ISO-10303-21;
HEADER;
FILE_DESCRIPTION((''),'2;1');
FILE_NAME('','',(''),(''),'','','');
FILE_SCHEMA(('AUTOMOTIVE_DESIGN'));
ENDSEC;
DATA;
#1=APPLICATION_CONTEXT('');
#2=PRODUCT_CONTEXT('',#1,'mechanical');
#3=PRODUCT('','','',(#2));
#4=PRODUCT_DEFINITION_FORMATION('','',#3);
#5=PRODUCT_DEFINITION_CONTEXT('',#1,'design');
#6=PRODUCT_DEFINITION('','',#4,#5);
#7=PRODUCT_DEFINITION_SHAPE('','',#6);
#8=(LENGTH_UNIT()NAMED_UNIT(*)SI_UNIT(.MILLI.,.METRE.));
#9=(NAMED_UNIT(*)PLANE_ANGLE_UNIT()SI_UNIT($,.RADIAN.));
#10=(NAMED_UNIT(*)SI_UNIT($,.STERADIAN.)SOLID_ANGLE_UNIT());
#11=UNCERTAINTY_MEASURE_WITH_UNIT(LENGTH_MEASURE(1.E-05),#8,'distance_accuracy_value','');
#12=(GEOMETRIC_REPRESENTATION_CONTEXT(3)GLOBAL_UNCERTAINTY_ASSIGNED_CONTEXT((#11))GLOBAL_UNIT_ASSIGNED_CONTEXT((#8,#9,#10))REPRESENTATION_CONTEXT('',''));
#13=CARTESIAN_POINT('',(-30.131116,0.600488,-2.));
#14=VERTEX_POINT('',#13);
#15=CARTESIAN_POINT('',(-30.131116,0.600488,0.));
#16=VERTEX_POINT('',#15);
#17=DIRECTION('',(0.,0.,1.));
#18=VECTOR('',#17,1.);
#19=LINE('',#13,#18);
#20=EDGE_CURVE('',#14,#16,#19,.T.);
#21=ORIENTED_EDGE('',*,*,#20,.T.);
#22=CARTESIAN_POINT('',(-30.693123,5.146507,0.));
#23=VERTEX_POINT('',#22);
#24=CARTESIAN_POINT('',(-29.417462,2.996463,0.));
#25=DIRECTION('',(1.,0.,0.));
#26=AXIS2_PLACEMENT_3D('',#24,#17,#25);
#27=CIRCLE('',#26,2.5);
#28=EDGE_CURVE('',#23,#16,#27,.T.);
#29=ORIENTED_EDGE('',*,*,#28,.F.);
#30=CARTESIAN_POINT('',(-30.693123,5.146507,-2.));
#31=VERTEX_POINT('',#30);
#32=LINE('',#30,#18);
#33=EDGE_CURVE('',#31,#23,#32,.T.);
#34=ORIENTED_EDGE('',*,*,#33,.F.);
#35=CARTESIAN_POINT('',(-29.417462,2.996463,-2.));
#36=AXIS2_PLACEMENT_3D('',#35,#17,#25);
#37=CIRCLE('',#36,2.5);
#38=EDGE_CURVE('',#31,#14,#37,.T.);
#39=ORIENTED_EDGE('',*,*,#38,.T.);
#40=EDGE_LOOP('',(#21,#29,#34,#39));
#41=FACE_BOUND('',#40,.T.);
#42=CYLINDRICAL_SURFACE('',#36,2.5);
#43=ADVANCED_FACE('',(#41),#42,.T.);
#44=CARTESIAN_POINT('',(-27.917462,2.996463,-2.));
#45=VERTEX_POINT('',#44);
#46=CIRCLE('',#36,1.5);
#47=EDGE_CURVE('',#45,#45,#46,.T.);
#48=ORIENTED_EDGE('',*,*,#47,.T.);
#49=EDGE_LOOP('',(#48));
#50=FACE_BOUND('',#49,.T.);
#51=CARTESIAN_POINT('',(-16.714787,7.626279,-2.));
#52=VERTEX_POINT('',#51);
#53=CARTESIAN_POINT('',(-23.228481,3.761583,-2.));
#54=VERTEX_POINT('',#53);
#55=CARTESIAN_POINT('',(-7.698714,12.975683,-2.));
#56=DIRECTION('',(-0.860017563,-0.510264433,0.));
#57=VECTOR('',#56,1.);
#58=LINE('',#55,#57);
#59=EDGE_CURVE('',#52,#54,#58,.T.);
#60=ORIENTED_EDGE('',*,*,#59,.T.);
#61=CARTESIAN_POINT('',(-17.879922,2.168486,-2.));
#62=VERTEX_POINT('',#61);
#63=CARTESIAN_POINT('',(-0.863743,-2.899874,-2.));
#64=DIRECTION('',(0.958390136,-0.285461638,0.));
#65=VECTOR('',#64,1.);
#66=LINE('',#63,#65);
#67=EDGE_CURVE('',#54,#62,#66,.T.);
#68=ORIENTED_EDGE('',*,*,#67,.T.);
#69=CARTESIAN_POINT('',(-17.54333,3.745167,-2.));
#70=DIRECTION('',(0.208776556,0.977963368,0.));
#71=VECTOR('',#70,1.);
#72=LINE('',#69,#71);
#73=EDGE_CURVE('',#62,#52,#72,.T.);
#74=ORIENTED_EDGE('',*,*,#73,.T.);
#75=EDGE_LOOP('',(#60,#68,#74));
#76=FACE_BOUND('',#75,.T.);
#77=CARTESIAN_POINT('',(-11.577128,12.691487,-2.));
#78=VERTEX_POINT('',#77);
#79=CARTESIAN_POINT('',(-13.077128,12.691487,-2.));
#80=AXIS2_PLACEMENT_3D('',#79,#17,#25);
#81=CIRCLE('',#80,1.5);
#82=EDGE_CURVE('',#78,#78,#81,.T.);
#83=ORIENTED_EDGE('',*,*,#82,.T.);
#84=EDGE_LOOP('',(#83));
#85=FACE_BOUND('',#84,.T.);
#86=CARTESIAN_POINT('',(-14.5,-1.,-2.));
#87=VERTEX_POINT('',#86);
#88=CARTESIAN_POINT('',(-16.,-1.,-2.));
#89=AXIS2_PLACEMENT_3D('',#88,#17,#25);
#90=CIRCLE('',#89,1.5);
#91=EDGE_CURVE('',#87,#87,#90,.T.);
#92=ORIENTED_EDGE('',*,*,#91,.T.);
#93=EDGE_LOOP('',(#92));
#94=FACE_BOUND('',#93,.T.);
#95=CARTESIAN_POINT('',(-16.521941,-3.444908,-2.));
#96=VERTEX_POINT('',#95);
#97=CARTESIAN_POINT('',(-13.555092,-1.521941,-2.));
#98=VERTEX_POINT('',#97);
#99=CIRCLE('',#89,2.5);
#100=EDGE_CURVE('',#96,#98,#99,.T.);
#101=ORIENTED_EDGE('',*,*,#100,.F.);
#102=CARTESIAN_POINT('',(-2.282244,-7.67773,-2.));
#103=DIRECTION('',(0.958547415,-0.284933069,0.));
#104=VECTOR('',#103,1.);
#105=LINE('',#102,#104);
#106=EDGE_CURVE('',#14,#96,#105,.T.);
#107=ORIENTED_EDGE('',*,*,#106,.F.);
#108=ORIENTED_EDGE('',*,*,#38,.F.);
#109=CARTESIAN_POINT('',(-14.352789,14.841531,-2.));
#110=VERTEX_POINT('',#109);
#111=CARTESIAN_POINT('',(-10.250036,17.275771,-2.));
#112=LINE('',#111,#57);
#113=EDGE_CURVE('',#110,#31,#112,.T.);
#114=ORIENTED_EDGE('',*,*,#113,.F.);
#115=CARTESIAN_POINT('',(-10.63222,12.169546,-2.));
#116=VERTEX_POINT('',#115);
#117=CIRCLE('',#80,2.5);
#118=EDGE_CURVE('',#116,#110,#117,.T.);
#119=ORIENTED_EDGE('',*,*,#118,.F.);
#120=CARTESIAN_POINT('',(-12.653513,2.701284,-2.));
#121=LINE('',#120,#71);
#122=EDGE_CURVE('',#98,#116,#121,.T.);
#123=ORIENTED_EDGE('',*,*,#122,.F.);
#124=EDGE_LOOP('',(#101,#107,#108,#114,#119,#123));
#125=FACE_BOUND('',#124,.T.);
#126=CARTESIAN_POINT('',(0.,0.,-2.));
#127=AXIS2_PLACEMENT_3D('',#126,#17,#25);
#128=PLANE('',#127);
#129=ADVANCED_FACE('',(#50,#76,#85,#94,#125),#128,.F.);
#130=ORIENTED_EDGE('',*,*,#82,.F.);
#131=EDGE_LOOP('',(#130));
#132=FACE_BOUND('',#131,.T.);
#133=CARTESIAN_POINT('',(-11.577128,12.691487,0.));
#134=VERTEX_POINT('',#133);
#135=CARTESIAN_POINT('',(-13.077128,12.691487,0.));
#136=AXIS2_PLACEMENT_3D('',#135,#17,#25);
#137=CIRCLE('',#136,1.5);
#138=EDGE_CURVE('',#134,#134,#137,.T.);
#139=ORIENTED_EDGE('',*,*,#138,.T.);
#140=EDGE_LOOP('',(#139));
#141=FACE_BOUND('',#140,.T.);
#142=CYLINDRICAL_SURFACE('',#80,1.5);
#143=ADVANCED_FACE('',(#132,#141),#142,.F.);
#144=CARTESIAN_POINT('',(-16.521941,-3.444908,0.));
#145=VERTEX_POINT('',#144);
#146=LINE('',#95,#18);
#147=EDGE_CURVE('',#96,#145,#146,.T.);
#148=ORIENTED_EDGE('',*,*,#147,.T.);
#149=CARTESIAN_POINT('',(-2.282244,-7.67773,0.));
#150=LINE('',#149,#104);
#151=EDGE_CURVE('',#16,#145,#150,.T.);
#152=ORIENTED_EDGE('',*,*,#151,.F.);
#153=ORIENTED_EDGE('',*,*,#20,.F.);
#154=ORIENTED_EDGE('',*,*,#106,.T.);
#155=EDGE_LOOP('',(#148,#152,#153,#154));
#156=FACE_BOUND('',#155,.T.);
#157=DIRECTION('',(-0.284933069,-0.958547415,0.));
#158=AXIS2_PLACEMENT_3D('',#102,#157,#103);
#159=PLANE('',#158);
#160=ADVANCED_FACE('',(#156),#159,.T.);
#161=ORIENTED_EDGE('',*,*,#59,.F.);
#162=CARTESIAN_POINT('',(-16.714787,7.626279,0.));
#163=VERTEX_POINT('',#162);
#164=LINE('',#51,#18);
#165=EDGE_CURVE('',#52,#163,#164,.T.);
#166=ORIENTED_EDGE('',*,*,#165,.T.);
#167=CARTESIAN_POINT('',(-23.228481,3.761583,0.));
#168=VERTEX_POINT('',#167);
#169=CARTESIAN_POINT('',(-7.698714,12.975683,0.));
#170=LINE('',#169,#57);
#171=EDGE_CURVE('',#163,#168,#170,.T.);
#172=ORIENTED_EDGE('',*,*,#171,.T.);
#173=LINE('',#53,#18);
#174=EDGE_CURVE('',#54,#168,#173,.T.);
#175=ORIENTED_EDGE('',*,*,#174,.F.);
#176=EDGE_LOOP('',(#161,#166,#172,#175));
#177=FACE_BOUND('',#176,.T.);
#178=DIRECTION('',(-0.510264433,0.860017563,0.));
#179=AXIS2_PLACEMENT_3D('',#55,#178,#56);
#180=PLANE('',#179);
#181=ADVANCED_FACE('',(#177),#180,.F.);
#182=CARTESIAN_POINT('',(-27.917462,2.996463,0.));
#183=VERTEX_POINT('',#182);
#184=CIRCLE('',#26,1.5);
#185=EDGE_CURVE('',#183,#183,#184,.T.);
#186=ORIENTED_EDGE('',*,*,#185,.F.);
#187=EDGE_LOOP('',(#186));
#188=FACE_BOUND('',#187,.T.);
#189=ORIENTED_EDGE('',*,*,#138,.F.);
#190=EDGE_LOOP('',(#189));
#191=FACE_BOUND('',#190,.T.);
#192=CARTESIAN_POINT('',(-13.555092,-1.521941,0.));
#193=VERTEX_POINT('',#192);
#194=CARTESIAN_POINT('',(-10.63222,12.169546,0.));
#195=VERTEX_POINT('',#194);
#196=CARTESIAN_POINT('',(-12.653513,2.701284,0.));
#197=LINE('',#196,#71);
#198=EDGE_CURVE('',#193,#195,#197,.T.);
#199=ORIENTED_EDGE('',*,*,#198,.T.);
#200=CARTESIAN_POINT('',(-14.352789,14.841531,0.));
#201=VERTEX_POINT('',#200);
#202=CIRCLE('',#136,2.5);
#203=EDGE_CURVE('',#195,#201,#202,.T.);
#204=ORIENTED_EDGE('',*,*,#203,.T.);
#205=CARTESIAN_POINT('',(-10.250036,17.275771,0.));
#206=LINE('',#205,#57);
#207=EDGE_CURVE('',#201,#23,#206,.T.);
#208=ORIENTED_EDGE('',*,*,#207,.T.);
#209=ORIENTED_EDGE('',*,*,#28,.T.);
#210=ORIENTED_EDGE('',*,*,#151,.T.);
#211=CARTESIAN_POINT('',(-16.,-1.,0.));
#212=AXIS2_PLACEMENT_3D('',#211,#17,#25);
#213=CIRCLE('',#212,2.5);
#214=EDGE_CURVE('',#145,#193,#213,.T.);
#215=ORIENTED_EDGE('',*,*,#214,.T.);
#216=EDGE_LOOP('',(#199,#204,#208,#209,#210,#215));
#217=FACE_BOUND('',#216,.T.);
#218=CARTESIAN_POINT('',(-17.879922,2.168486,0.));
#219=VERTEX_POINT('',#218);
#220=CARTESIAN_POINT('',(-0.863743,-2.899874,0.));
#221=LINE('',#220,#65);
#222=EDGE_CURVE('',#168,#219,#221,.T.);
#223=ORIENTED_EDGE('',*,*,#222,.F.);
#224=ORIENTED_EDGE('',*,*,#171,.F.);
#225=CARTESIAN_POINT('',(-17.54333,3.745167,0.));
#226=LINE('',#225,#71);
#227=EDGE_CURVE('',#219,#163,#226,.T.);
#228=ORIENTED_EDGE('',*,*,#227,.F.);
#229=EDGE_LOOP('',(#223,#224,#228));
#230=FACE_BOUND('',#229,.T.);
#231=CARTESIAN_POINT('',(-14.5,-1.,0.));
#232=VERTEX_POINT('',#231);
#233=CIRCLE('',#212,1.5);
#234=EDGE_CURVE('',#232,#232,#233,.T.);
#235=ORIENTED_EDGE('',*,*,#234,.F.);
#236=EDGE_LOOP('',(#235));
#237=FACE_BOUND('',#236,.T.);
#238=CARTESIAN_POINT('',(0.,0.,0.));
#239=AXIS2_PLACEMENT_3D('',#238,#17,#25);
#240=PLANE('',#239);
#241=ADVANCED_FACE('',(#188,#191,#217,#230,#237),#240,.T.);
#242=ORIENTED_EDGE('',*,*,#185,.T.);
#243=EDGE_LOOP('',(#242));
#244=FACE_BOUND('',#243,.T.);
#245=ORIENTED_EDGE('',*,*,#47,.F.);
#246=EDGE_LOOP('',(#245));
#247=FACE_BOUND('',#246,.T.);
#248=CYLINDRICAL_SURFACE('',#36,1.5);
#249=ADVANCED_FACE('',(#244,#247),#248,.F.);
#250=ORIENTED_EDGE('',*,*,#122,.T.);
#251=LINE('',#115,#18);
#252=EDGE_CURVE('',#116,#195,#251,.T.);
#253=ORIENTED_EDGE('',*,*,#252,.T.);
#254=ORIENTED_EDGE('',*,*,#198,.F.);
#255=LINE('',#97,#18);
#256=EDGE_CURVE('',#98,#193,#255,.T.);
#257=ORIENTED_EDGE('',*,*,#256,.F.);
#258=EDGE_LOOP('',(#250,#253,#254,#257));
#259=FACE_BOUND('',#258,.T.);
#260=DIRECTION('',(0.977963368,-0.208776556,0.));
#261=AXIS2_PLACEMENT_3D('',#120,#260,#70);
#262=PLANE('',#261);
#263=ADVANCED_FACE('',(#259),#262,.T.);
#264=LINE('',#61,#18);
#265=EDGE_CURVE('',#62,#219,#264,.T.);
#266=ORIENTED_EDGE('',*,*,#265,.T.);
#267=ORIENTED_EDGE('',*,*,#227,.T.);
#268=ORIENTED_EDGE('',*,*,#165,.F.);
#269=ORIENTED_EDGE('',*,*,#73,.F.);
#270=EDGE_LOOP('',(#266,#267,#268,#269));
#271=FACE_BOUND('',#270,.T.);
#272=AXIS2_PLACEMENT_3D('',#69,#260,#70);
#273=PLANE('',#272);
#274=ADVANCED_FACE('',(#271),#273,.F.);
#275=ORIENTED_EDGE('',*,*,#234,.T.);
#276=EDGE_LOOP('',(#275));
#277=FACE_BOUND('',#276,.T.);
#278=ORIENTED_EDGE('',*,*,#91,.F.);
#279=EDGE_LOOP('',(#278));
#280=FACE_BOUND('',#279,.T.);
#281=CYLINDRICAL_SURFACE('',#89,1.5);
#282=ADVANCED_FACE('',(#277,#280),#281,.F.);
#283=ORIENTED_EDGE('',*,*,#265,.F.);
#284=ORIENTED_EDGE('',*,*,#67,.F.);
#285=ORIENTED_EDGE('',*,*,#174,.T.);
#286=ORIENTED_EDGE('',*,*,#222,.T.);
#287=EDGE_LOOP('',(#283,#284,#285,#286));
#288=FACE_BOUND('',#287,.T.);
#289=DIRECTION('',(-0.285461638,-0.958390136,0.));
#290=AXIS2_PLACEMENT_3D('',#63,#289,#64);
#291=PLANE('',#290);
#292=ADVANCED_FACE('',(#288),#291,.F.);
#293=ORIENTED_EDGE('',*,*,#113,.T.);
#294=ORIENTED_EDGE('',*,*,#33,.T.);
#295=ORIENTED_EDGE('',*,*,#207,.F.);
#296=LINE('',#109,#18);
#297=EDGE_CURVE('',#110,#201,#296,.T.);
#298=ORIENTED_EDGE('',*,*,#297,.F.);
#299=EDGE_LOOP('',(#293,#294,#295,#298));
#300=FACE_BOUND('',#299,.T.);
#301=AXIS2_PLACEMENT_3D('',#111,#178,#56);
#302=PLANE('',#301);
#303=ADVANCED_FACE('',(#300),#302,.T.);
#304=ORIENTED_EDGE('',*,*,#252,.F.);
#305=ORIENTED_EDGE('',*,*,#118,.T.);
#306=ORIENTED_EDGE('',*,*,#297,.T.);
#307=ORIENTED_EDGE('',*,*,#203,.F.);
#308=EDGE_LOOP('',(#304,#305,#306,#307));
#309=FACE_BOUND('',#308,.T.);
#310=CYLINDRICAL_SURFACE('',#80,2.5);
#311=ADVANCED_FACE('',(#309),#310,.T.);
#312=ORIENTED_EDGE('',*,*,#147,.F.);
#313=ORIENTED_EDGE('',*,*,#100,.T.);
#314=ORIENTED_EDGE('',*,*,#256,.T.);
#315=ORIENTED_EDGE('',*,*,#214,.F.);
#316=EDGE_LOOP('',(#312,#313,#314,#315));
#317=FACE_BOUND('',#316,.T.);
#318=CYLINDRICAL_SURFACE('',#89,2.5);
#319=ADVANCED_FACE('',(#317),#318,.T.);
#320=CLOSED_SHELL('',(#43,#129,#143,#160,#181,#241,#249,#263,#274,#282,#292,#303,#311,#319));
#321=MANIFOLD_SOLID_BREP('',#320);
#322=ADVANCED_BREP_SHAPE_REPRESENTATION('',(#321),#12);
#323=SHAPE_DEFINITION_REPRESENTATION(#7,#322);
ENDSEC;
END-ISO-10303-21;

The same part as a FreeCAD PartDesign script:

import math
import FreeCAD as App
import Part
import Sketcher
from FreeCAD import Vector
Q = App.Units.Quantity

doc = App.newDocument("Part")
params = doc.addObject("Spreadsheet::Sheet", "Params")
for row, (alias, value) in enumerate([
    ("sketch1_radius", "2.5 mm"),
    ("sketch1_length", "14 mm"),
    ("sketch1_length2", "19 mm"),
    ("pad1_length", "2 mm"),
    ("sketch2_diameter", "3 mm"),
    ("pocket1_length", "2 mm"),
], start=1):
    params.set(f"A{row}", alias)
    params.set(f"B{row}", "=" + value)
    params.setAlias(f"B{row}", alias)

body = doc.addObject("PartDesign::Body", "Body")

# Sketch on XY plane
sketch1 = body.newObject("Sketcher::SketchObject", "Sketch")
sketch1.AttachmentSupport = (doc.getObject("XY_Plane"), [""])
sketch1.MapMode = "FlatFace"
sketch1.addGeometry([
    Part.LineSegment(Vector(-13.555092, -1.521941, 0), Vector(-10.63222, 12.169546, 0)),  # 0
    Part.ArcOfCircle(Part.Circle(Vector(-13.077128, 12.691487, 0), Vector(0, 0, 1), 2.5), math.radians(-12.050665), math.radians(120.681445)),  # 1
    Part.LineSegment(Vector(-14.352789, 14.841531, 0), Vector(-30.693123, 5.146507, 0)),  # 2
    Part.ArcOfCircle(Part.Circle(Vector(-29.417462, 2.996463, 0), Vector(0, 0, 1), 2.5), math.radians(120.681445), math.radians(253.413555)),  # 3
    Part.LineSegment(Vector(-30.131116, 0.600488, 0), Vector(-16.898324, -3.333027, 0)),  # 4
    Part.LineSegment(Vector(-16.898324, -3.333027, 0), Vector(-16.521941, -3.444908, 0)),  # 5
    Part.ArcOfCircle(Part.Circle(Vector(-16, -1, 0), Vector(0, 0, 1), 2.5), math.radians(-102.050665), math.radians(-12.050665)),  # 6
    Part.LineSegment(Vector(-23.228481, 3.761583, 0), Vector(-16.714787, 7.626279, 0)),  # 7
    Part.LineSegment(Vector(-16.714787, 7.626279, 0), Vector(-17.879922, 2.168486, 0)),  # 8
    Part.LineSegment(Vector(-17.879922, 2.168486, 0), Vector(-23.228481, 3.761583, 0)),  # 9
], False)
sketch1.addConstraint([
    Sketcher.Constraint("Tangent", 0, 2, 1, 1),
    Sketcher.Constraint("Tangent", 1, 2, 2, 1),
    Sketcher.Constraint("Tangent", 2, 2, 3, 1),
    Sketcher.Constraint("Coincident", 3, 2, 4, 1),
    Sketcher.Constraint("Coincident", 4, 2, 5, 1),
    Sketcher.Constraint("Coincident", 5, 2, 6, 1),
    Sketcher.Constraint("Tangent", 6, 2, 0, 1),
    Sketcher.Constraint("Coincident", 7, 2, 8, 1),
    Sketcher.Constraint("Coincident", 8, 2, 9, 1),
    Sketcher.Constraint("Coincident", 9, 2, 7, 1),
    Sketcher.Constraint("Equal", 1, 3),
    Sketcher.Constraint("Equal", 3, 6),
    Sketcher.Constraint("Parallel", 4, 5),
    Sketcher.Constraint("Parallel", 2, 7),
    Sketcher.Constraint("Parallel", 0, 8),
    Sketcher.Constraint("Equal", 8, 9),
    Sketcher.Constraint("Radius", 1, Q("2.5 mm")),
    Sketcher.Constraint("Distance", 0, Q("14 mm")),
    Sketcher.Constraint("Distance", 2, Q("19 mm")),
    Sketcher.Constraint("DistanceX", 6, 3, -1, 1, Q("16 mm")),
    Sketcher.Constraint("DistanceY", 6, 3, -1, 1, Q("1 mm")),
    Sketcher.Constraint("DistanceY", 3, 2, 1, 3, Q("12.091 mm")),
    Sketcher.Constraint("DistanceX", 2, 2, 4, 2, Q("13.794799 mm")),
    Sketcher.Constraint("Distance", 5, Q("0.392659 mm")),
    Sketcher.Constraint("Distance", 7, Q("7.573909 mm")),
    Sketcher.Constraint("DistanceX", 1, 3, -1, 1, Q("13.077128 mm")),
    Sketcher.Constraint("DistanceX", 3, 3, -1, 1, Q("29.417462 mm")),
    Sketcher.Constraint("DistanceY", -1, 1, 7, 2, Q("7.626279 mm")),
    Sketcher.Constraint("DistanceX", 8, 2, -1, 1, Q("17.879922 mm")),
])
sketch1.setExpression("Constraints[16]", "Params.sketch1_radius")
sketch1.setExpression("Constraints[17]", "Params.sketch1_length")
sketch1.setExpression("Constraints[18]", "Params.sketch1_length2")
pad1 = body.newObject("PartDesign::Pad", "Pad")
pad1.Profile = sketch1
pad1.setExpression("Length", "Params.pad1_length")
pad1.Reversed = True

# Sketch on XY plane
sketch2 = body.newObject("Sketcher::SketchObject", "Sketch001")
sketch2.AttachmentSupport = (doc.getObject("XY_Plane"), [""])
sketch2.MapMode = "FlatFace"
sketch2.addGeometry([
    Part.Circle(Vector(-29.417462, 2.996463, 0), Vector(0, 0, 1), 1.5),
    Part.Circle(Vector(-16, -1, 0), Vector(0, 0, 1), 1.5),
    Part.Circle(Vector(-13.077128, 12.691487, 0), Vector(0, 0, 1), 1.5),
], False)
sketch2.addConstraint([
    Sketcher.Constraint("Equal", 0, 1),
    Sketcher.Constraint("Equal", 1, 2),
    Sketcher.Constraint("Diameter", 0, Q("3 mm")),
    Sketcher.Constraint("DistanceX", 1, 3, -1, 1, Q("16 mm")),
    Sketcher.Constraint("DistanceY", 1, 3, -1, 1, Q("1 mm")),
    Sketcher.Constraint("DistanceX", 0, 3, -1, 1, Q("29.417462 mm")),
    Sketcher.Constraint("DistanceX", 2, 3, -1, 1, Q("13.077128 mm")),
    Sketcher.Constraint("DistanceY", -1, 1, 0, 3, Q("2.996463 mm")),
    Sketcher.Constraint("DistanceY", -1, 1, 2, 3, Q("12.691487 mm")),
])
sketch2.setExpression("Constraints[2]", "Params.sketch2_diameter")
pocket1 = body.newObject("PartDesign::Pocket", "Pocket")
pocket1.Profile = sketch2
pocket1.setExpression("Length", "Params.pocket1_length")

doc.recompute()
